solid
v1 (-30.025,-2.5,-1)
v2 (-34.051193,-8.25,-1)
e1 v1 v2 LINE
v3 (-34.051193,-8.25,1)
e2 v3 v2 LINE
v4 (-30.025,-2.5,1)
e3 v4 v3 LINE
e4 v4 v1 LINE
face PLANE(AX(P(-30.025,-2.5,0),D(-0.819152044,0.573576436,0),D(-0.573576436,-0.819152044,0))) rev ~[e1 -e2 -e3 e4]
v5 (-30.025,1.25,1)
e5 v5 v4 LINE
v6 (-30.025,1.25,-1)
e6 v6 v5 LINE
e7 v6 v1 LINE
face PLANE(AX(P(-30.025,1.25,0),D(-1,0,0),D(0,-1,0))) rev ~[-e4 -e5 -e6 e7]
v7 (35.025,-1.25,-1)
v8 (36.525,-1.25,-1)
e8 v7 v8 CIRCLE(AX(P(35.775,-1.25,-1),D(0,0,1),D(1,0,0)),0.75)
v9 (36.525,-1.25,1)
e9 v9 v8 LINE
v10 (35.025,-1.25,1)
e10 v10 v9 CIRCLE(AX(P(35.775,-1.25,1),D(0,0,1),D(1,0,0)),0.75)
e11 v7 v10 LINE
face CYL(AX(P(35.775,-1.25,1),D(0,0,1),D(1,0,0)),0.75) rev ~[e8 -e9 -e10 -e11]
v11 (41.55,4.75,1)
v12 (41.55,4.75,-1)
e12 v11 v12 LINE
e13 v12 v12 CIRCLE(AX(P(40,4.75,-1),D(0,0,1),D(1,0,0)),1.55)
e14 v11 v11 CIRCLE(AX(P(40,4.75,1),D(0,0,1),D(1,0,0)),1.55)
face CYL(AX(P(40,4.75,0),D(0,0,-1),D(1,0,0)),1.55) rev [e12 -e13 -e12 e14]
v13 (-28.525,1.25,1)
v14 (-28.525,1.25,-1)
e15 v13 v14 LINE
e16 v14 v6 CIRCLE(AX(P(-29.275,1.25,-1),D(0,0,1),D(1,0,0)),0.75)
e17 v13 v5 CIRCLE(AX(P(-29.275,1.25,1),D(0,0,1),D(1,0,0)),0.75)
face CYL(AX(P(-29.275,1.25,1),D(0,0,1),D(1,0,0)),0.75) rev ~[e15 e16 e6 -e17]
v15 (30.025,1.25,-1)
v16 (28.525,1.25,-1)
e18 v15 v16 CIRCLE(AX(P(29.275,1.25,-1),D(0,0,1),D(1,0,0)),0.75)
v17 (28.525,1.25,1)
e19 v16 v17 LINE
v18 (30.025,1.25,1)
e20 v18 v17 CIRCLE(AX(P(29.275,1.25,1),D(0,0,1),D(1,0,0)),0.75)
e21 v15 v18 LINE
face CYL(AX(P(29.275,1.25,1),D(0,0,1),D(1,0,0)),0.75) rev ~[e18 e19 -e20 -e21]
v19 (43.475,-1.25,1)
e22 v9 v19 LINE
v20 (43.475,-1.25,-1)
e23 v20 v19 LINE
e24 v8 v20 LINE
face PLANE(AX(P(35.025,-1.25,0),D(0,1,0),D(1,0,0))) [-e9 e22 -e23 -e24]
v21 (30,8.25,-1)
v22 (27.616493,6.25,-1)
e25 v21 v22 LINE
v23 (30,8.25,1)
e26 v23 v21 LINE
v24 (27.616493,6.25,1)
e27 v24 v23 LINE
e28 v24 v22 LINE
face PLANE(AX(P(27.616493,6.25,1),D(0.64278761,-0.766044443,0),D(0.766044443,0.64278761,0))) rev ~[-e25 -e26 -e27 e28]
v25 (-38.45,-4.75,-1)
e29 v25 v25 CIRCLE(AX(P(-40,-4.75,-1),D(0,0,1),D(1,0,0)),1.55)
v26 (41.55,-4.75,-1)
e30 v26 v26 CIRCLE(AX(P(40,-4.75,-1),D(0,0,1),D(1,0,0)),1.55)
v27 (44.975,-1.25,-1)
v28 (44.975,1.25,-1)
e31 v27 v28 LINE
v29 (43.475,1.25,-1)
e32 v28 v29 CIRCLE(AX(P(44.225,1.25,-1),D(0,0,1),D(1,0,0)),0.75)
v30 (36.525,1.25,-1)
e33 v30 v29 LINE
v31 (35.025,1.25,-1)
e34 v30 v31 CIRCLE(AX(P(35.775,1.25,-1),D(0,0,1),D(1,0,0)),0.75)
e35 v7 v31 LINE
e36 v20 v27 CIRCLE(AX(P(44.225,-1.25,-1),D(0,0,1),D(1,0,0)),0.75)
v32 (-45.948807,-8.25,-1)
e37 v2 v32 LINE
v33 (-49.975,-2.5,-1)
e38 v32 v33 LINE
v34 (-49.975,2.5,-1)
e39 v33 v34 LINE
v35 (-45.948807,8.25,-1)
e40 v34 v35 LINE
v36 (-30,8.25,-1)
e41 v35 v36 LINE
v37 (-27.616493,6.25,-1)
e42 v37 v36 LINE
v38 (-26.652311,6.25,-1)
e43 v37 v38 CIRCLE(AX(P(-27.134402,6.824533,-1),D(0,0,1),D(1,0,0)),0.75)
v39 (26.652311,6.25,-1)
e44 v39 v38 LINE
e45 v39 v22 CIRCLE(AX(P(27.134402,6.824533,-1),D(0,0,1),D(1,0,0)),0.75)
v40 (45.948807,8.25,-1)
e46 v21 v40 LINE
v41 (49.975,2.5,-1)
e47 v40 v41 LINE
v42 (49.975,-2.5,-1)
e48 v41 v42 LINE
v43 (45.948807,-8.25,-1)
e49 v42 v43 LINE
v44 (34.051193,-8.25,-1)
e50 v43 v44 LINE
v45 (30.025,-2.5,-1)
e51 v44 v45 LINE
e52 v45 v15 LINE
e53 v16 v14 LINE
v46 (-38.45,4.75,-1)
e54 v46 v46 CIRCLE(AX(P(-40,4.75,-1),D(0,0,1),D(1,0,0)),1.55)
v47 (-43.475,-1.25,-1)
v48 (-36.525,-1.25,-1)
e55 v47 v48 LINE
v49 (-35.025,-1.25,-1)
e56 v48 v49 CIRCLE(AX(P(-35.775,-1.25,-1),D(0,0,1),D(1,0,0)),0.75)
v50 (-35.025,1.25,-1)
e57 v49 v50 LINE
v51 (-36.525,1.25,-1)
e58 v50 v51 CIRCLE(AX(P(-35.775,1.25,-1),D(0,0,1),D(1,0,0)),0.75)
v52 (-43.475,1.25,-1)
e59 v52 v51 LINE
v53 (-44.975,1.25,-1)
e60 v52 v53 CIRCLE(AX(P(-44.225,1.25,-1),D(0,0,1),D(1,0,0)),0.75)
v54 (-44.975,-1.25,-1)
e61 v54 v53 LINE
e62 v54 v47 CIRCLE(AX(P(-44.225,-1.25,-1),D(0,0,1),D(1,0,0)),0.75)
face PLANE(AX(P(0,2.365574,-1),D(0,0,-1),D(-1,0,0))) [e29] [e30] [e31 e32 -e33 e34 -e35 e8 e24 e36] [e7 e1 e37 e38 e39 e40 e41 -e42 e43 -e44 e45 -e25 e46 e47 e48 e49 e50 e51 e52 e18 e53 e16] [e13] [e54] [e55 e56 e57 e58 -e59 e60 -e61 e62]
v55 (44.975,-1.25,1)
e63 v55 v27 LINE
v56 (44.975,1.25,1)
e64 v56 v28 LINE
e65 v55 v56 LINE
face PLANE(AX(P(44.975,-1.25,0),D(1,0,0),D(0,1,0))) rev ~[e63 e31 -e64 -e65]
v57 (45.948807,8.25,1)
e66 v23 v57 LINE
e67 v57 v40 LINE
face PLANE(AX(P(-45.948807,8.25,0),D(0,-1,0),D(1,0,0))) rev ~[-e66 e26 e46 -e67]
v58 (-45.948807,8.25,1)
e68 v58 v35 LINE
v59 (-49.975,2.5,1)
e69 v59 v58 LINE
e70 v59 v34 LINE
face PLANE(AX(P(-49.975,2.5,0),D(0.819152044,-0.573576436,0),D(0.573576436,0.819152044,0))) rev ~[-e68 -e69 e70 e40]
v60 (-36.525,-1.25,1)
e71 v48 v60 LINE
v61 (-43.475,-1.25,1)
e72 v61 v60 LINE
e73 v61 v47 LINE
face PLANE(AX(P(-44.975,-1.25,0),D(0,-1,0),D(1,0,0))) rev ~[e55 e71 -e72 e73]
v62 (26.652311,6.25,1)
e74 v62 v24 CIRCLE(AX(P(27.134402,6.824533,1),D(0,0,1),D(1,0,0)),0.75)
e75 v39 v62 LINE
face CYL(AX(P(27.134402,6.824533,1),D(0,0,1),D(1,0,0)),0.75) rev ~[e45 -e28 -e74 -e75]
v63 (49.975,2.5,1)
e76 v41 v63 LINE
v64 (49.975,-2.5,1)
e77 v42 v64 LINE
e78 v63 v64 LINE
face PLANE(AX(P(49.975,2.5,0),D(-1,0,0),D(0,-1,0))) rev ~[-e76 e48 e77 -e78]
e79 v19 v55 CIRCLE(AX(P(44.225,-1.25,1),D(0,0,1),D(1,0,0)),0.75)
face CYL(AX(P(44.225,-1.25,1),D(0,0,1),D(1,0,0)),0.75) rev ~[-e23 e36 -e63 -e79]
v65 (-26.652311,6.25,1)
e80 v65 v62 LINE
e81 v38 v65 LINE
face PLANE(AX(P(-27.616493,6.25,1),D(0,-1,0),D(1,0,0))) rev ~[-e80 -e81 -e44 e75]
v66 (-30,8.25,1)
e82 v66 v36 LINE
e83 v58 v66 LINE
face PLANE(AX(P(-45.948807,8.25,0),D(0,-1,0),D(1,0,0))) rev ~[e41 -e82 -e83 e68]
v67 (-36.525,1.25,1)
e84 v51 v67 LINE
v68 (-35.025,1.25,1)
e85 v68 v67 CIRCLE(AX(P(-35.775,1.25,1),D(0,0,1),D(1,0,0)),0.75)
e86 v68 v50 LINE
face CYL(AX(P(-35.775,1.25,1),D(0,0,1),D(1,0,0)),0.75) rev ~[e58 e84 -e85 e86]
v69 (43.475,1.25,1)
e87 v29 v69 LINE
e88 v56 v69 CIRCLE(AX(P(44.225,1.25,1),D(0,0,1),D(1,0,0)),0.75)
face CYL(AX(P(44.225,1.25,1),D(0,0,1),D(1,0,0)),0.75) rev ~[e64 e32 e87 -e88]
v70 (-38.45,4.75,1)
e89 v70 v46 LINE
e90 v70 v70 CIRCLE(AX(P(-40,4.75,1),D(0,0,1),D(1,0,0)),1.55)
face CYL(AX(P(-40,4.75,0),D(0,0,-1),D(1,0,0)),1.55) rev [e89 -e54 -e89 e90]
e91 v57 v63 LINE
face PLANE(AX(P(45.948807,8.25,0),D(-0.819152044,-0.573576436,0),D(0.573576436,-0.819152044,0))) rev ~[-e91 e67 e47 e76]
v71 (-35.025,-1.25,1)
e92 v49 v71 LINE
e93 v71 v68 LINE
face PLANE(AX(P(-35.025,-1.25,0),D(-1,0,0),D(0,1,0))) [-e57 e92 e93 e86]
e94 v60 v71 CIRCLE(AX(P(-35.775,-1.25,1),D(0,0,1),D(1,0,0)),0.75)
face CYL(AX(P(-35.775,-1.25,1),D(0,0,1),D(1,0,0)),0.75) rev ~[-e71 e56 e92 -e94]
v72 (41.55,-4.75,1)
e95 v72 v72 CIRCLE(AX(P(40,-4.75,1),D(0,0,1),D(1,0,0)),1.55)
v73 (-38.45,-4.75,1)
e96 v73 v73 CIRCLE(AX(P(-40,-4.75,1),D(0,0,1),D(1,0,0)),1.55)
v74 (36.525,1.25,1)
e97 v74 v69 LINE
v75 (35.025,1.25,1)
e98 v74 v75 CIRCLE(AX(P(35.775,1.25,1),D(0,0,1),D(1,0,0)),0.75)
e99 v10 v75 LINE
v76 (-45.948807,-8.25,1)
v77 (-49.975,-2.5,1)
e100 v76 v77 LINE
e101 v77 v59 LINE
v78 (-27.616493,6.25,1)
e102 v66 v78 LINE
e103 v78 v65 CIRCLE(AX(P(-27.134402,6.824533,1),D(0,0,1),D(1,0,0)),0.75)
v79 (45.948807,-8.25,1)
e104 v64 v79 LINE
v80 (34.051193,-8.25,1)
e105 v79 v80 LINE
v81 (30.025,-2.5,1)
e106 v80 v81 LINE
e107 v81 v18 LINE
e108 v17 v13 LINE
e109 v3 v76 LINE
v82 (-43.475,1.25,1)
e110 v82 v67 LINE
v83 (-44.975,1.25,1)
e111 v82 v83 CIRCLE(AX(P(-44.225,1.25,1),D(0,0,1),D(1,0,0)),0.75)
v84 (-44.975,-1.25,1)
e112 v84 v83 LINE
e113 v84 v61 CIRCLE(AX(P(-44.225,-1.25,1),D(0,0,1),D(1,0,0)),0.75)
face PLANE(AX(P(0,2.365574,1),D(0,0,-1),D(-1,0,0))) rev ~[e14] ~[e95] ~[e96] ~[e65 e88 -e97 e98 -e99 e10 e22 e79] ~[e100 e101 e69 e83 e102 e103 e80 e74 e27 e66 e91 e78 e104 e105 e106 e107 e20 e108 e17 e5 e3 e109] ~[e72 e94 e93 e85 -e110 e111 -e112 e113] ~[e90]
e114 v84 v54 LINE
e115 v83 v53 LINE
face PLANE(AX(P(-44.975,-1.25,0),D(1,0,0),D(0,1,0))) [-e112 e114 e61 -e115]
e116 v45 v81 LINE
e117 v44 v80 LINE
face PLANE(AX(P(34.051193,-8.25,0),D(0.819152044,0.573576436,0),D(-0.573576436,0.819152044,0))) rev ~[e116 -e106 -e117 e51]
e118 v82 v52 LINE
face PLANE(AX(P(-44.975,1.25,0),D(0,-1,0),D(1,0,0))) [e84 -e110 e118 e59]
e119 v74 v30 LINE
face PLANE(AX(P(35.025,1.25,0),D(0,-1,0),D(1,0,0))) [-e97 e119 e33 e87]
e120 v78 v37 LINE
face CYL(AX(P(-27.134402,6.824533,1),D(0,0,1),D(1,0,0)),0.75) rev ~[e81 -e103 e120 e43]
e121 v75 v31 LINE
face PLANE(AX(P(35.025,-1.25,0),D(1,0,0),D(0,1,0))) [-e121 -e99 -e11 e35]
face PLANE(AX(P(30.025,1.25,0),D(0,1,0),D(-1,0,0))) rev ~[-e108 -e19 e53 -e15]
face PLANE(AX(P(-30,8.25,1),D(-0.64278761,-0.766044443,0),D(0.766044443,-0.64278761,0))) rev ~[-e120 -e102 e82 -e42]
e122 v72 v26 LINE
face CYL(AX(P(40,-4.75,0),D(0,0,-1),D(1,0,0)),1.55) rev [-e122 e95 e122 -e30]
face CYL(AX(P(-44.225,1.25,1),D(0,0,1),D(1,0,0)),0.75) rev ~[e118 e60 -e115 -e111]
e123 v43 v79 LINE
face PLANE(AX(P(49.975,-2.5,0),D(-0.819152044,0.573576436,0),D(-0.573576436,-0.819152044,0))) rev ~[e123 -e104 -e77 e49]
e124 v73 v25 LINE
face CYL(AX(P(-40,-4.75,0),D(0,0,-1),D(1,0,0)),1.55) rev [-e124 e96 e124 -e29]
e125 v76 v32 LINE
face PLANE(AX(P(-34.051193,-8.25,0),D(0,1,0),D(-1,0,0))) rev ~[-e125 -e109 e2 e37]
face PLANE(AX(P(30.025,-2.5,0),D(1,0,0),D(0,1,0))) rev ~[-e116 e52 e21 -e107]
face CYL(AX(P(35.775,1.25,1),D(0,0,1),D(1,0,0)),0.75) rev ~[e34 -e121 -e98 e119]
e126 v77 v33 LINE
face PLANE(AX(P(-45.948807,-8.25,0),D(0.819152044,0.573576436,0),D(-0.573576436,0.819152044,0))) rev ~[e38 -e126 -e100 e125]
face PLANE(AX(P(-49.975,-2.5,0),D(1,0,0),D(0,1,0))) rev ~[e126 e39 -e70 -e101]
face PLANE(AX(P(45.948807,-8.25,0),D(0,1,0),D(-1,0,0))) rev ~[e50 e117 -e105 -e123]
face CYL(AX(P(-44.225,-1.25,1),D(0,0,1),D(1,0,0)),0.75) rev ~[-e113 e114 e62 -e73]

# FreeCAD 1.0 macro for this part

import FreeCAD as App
import Part
import Sketcher
Q = App.Units.Quantity


def add_polygon(sketch, points):
    """Adds a closed chain of lines whose ends are joined by coincident constraints."""
    first, n = sketch.GeometryCount, len(points)
    for a, b in zip(points, points[1:] + points[:1]):
        sketch.addGeometry(Part.LineSegment(App.Vector(*a, 0), App.Vector(*b, 0)), False)
    for i in range(n):
        sketch.addConstraint(Sketcher.Constraint("Coincident", first + i, 2, first + (i + 1) % n, 1))

doc = App.newDocument("Part")
params = doc.addObject("Spreadsheet::Sheet", "Params")
for row, (alias, value) in enumerate([
    ("sketch1_diameter", "3.1 mm"),
    ("sketch1_height", "5 mm"),
    ("sketch1_height2", "2.5 mm"),
    ("sketch1_width", "60.05 mm"),
    ("pad1_length", "2 mm"),
    ("sketch2_diameter", "1.5 mm"),
    ("sketch3_width", "60 mm"),
    ("sketch4_diameter", "1.5 mm"),
], start=1):
    params.set(f"A{row}", alias)
    params.set(f"B{row}", "=" + value)
    params.setAlias(f"B{row}", alias)

body = doc.addObject("PartDesign::Body", "Body")

# Sketch on XY plane
sketch1 = body.newObject("Sketcher::SketchObject", "Sketch")
sketch1.AttachmentSupport = (doc.getObject("XY_Plane"), [""])
sketch1.MapMode = "FlatFace"
add_polygon(sketch1, [(-30, -2.5), (-30, 1.2), (30, 1.2), (30, -2.5), (34.1, -8.2), (45.9, -8.2), (50, -2.5), (50, 2.5), (45.9, 8.2), (-45.9, 8.2), (-50, 2.5), (-50, -2.5), (-45.9, -8.2), (-34.1, -8.2)])  # lines 0-13
sketch1.addGeometry(Part.Circle(App.Vector(40, -4.8, 0), App.Vector(0, 0, 1), 1.6), False)  # 14
add_polygon(sketch1, [(35, -1.2), (35, 1.2), (45, 1.2), (45, -1.2)])  # lines 15-18
sketch1.addGeometry(Part.Circle(App.Vector(-40, -4.8, 0), App.Vector(0, 0, 1), 1.6), False)  # 19
add_polygon(sketch1, [(-45, -1.2), (-45, 1.2), (-35, 1.2), (-35, -1.2)])  # lines 20-23
sketch1.addGeometry(Part.Circle(App.Vector(40, 4.8, 0), App.Vector(0, 0, 1), 1.6), False)  # 24
sketch1.addGeometry(Part.Circle(App.Vector(-40, 4.8, 0), App.Vector(0, 0, 1), 1.6), False)  # 25
sketch1.addConstraint([
    Sketcher.Constraint("Vertical", 0),
    Sketcher.Constraint("Horizontal", 1),
    Sketcher.Constraint("Vertical", 2),
    Sketcher.Constraint("Horizontal", 4),
    Sketcher.Constraint("Vertical", 6),
    Sketcher.Constraint("Horizontal", 8),
    Sketcher.Constraint("Vertical", 10),
    Sketcher.Constraint("Horizontal", 12),
    Sketcher.Constraint("Vertical", 15),
    Sketcher.Constraint("Horizontal", 16),
    Sketcher.Constraint("Vertical", 17),
    Sketcher.Constraint("Horizontal", 18),
    Sketcher.Constraint("Vertical", 20),
    Sketcher.Constraint("Horizontal", 21),
    Sketcher.Constraint("Vertical", 22),
    Sketcher.Constraint("Horizontal", 23),
    Sketcher.Constraint("Equal", 14, 19),
    Sketcher.Constraint("Equal", 19, 24),
    Sketcher.Constraint("Equal", 24, 25),
    Sketcher.Constraint("Symmetric", 19, 3, 24, 3, -1, 1),
    Sketcher.Constraint("Symmetric", 14, 3, 25, 3, -1, 1),
    Sketcher.Constraint("Symmetric", 4, 2, 8, 2, -1, 1),
    Sketcher.Constraint("Symmetric", 5, 2, 9, 2, -1, 1),
    Sketcher.Constraint("Symmetric", 7, 2, 11, 2, -1, 1),
    Sketcher.Constraint("Symmetric", 17, 2, 20, 2, -1, 1),
    Sketcher.Constraint("Symmetric", 15, 2, 22, 2, -1, 1),
    Sketcher.Constraint("Symmetric", 14, 3, 19, 3, -2),
    Sketcher.Constraint("Symmetric", 2, 2, 13, 2, -2),
    Sketcher.Constraint("Parallel", 3, 7),
    Sketcher.Constraint("Parallel", 7, 11),
    Sketcher.Constraint("Parallel", 9, 13),
    Sketcher.Constraint("Horizontal", 2, 2, 5, 2),
    Sketcher.Constraint("Horizontal", 6, 2, 9, 2),
    Sketcher.Constraint("Horizontal", 1, 2, 15, 2),
    Sketcher.Constraint("Horizontal", 16, 2, 20, 2),
    Sketcher.Constraint("Vertical", 4, 2, 7, 2),
    Sketcher.Constraint("Diameter", 14, 3.1),
    Sketcher.Constraint("DistanceY", 6, 1, 6, 2, 5.0),
    Sketcher.Constraint("Angle", 3, Q("-55 deg")),
    Sketcher.Constraint("DistanceY", 15, 1, 15, 2, 2.5),
    Sketcher.Constraint("DistanceX", -1, 1, 14, 3, 40.0),
    Sketcher.Constraint("DistanceY", 19, 3, 0, 2, 6.0),
    Sketcher.Constraint("DistanceY", 3, 2, 24, 3, 13.0),
    Sketcher.Constraint("DistanceX", 9, 2, 1, 2, 80.0),
    Sketcher.Constraint("DistanceX", 1, 2, 15, 2, 5.0),
    Sketcher.Constraint("DistanceX", 16, 2, 6, 2, 5.0),
    Sketcher.Constraint("DistanceX", 1, 1, 1, 2, 60.05),
])
sketch1.setExpression("Constraints[58]", "Params.sketch1_diameter")
sketch1.setExpression("Constraints[59]", "Params.sketch1_height")
sketch1.setExpression("Constraints[61]", "Params.sketch1_height2")
sketch1.setExpression("Constraints[68]", "Params.sketch1_width")
pad1 = body.newObject("PartDesign::Pad", "Pad")
pad1.Profile = sketch1
pad1.setExpression("Length", "Params.pad1_length")
pad1.Midplane = True

# Sketch on XY plane
sketch2 = body.newObject("Sketcher::SketchObject", "Sketch001")
sketch2.AttachmentSupport = (doc.getObject("XY_Plane"), [""])
sketch2.MapMode = "FlatFace"
sketch2.AttachmentOffset = App.Placement(App.Vector(0, 0, 1), App.Rotation())
sketch2.addGeometry([
    Part.Circle(App.Vector(-35.8, 1.2, 0), App.Vector(0, 0, 1), 0.8),  # 0
    Part.Circle(App.Vector(-35.8, -1.2, 0), App.Vector(0, 0, 1), 0.8),  # 1
    Part.Circle(App.Vector(-44.2, 1.2, 0), App.Vector(0, 0, 1), 0.8),  # 2
    Part.Circle(App.Vector(-44.2, -1.2, 0), App.Vector(0, 0, 1), 0.8),  # 3
    Part.Circle(App.Vector(-29.3, 1.2, 0), App.Vector(0, 0, 1), 0.8),  # 4
    Part.Circle(App.Vector(29.3, 1.2, 0), App.Vector(0, 0, 1), 0.8),  # 5
    Part.Circle(App.Vector(44.2, -1.2, 0), App.Vector(0, 0, 1), 0.8),  # 6
    Part.Circle(App.Vector(44.2, 1.2, 0), App.Vector(0, 0, 1), 0.8),  # 7
    Part.Circle(App.Vector(35.8, -1.2, 0), App.Vector(0, 0, 1), 0.8),  # 8
    Part.Circle(App.Vector(35.8, 1.2, 0), App.Vector(0, 0, 1), 0.8),  # 9
], False)
sketch2.addConstraint([
    Sketcher.Constraint("Equal", 0, 1),
    Sketcher.Constraint("Equal", 1, 2),
    Sketcher.Constraint("Equal", 2, 3),
    Sketcher.Constraint("Equal", 3, 4),
    Sketcher.Constraint("Equal", 4, 5),
    Sketcher.Constraint("Equal", 5, 6),
    Sketcher.Constraint("Equal", 6, 7),
    Sketcher.Constraint("Equal", 7, 8),
    Sketcher.Constraint("Equal", 8, 9),
    Sketcher.Constraint("Symmetric", 2, 3, 6, 3, -1, 1),
    Sketcher.Constraint("Symmetric", 3, 3, 7, 3, -1, 1),
    Sketcher.Constraint("Symmetric", 0, 3, 8, 3, -1, 1),
    Sketcher.Constraint("Symmetric", 1, 3, 9, 3, -1, 1),
    Sketcher.Constraint("Symmetric", 4, 3, 5, 3, -2),
    Sketcher.Constraint("Symmetric", 3, 3, 6, 3, -2),
    Sketcher.Constraint("Symmetric", 1, 3, 8, 3, -2),
    Sketcher.Constraint("Horizontal", 0, 3, 2, 3),
    Sketcher.Constraint("Horizontal", 2, 3, 4, 3),
    Sketcher.Constraint("Diameter", 0, 1.5),
    Sketcher.Constraint("DistanceX", 1, 3, 6, 3, 80.0),
    Sketcher.Constraint("DistanceY", 1, 3, 0, 3, 2.5),
    Sketcher.Constraint("DistanceX", 0, 3, 4, 3, 6.5),
    Sketcher.Constraint("DistanceX", 2, 3, 0, 3, 8.45),
])
sketch2.setExpression("Constraints[18]", "Params.sketch2_diameter")
pocket1 = body.newObject("PartDesign::Pocket", "Pocket")
pocket1.Profile = sketch2
pocket1.Type = "ThroughAll"

# Sketch on XY plane
sketch3 = body.newObject("Sketcher::SketchObject", "Sketch002")
sketch3.AttachmentSupport = (doc.getObject("XY_Plane"), [""])
sketch3.MapMode = "FlatFace"
sketch3.AttachmentOffset = App.Placement(App.Vector(0, 0, 1), App.Rotation())
add_polygon(sketch3, [(-30, 8.2), (-27.6, 6.2), (27.6, 6.2), (30, 8.2)])  # lines 0-3
sketch3.addConstraint([
    Sketcher.Constraint("Horizontal", 1),
    Sketcher.Constraint("Horizontal", 3),
    Sketcher.Constraint("Equal", 0, 2),
    Sketcher.Constraint("DistanceX", 3, 2, 3, 1, 60.0),
    Sketcher.Constraint("Angle", 0, Q("-40 deg")),
    Sketcher.Constraint("DistanceX", -1, 1, 2, 2, 30.0),
    Sketcher.Constraint("DistanceY", 1, 2, 2, 2, 2.0),
    Sketcher.Constraint("DistanceY", -1, 1, 0, 2, 6.25),
])
sketch3.setExpression("Constraints[7]", "Params.sketch3_width")
pocket2 = body.newObject("PartDesign::Pocket", "Pocket001")
pocket2.Profile = sketch3
pocket2.Type = "ThroughAll"

# Sketch on XY plane
sketch4 = body.newObject("Sketcher::SketchObject", "Sketch003")
sketch4.AttachmentSupport = (doc.getObject("XY_Plane"), [""])
sketch4.MapMode = "FlatFace"
sketch4.AttachmentOffset = App.Placement(App.Vector(0, 0, 1), App.Rotation())
sketch4.addGeometry([
    Part.Circle(App.Vector(-27.1, 6.8, 0), App.Vector(0, 0, 1), 0.8),
    Part.Circle(App.Vector(27.1, 6.8, 0), App.Vector(0, 0, 1), 0.8),
], False)
sketch4.addConstraint([
    Sketcher.Constraint("Equal", 0, 1),
    Sketcher.Constraint("Symmetric", 0, 3, 1, 3, -2),
    Sketcher.Constraint("Diameter", 0, 1.5),
    Sketcher.Constraint("DistanceX", 0, 3, -1, 1, 27.134402),
    Sketcher.Constraint("DistanceY", -1, 1, 0, 3, 6.824533),
])
sketch4.setExpression("Constraints[2]", "Params.sketch4_diameter")
pocket3 = body.newObject("PartDesign::Pocket", "Pocket002")
pocket3.Profile = sketch4
pocket3.Type = "ThroughAll"

doc.recompute()
